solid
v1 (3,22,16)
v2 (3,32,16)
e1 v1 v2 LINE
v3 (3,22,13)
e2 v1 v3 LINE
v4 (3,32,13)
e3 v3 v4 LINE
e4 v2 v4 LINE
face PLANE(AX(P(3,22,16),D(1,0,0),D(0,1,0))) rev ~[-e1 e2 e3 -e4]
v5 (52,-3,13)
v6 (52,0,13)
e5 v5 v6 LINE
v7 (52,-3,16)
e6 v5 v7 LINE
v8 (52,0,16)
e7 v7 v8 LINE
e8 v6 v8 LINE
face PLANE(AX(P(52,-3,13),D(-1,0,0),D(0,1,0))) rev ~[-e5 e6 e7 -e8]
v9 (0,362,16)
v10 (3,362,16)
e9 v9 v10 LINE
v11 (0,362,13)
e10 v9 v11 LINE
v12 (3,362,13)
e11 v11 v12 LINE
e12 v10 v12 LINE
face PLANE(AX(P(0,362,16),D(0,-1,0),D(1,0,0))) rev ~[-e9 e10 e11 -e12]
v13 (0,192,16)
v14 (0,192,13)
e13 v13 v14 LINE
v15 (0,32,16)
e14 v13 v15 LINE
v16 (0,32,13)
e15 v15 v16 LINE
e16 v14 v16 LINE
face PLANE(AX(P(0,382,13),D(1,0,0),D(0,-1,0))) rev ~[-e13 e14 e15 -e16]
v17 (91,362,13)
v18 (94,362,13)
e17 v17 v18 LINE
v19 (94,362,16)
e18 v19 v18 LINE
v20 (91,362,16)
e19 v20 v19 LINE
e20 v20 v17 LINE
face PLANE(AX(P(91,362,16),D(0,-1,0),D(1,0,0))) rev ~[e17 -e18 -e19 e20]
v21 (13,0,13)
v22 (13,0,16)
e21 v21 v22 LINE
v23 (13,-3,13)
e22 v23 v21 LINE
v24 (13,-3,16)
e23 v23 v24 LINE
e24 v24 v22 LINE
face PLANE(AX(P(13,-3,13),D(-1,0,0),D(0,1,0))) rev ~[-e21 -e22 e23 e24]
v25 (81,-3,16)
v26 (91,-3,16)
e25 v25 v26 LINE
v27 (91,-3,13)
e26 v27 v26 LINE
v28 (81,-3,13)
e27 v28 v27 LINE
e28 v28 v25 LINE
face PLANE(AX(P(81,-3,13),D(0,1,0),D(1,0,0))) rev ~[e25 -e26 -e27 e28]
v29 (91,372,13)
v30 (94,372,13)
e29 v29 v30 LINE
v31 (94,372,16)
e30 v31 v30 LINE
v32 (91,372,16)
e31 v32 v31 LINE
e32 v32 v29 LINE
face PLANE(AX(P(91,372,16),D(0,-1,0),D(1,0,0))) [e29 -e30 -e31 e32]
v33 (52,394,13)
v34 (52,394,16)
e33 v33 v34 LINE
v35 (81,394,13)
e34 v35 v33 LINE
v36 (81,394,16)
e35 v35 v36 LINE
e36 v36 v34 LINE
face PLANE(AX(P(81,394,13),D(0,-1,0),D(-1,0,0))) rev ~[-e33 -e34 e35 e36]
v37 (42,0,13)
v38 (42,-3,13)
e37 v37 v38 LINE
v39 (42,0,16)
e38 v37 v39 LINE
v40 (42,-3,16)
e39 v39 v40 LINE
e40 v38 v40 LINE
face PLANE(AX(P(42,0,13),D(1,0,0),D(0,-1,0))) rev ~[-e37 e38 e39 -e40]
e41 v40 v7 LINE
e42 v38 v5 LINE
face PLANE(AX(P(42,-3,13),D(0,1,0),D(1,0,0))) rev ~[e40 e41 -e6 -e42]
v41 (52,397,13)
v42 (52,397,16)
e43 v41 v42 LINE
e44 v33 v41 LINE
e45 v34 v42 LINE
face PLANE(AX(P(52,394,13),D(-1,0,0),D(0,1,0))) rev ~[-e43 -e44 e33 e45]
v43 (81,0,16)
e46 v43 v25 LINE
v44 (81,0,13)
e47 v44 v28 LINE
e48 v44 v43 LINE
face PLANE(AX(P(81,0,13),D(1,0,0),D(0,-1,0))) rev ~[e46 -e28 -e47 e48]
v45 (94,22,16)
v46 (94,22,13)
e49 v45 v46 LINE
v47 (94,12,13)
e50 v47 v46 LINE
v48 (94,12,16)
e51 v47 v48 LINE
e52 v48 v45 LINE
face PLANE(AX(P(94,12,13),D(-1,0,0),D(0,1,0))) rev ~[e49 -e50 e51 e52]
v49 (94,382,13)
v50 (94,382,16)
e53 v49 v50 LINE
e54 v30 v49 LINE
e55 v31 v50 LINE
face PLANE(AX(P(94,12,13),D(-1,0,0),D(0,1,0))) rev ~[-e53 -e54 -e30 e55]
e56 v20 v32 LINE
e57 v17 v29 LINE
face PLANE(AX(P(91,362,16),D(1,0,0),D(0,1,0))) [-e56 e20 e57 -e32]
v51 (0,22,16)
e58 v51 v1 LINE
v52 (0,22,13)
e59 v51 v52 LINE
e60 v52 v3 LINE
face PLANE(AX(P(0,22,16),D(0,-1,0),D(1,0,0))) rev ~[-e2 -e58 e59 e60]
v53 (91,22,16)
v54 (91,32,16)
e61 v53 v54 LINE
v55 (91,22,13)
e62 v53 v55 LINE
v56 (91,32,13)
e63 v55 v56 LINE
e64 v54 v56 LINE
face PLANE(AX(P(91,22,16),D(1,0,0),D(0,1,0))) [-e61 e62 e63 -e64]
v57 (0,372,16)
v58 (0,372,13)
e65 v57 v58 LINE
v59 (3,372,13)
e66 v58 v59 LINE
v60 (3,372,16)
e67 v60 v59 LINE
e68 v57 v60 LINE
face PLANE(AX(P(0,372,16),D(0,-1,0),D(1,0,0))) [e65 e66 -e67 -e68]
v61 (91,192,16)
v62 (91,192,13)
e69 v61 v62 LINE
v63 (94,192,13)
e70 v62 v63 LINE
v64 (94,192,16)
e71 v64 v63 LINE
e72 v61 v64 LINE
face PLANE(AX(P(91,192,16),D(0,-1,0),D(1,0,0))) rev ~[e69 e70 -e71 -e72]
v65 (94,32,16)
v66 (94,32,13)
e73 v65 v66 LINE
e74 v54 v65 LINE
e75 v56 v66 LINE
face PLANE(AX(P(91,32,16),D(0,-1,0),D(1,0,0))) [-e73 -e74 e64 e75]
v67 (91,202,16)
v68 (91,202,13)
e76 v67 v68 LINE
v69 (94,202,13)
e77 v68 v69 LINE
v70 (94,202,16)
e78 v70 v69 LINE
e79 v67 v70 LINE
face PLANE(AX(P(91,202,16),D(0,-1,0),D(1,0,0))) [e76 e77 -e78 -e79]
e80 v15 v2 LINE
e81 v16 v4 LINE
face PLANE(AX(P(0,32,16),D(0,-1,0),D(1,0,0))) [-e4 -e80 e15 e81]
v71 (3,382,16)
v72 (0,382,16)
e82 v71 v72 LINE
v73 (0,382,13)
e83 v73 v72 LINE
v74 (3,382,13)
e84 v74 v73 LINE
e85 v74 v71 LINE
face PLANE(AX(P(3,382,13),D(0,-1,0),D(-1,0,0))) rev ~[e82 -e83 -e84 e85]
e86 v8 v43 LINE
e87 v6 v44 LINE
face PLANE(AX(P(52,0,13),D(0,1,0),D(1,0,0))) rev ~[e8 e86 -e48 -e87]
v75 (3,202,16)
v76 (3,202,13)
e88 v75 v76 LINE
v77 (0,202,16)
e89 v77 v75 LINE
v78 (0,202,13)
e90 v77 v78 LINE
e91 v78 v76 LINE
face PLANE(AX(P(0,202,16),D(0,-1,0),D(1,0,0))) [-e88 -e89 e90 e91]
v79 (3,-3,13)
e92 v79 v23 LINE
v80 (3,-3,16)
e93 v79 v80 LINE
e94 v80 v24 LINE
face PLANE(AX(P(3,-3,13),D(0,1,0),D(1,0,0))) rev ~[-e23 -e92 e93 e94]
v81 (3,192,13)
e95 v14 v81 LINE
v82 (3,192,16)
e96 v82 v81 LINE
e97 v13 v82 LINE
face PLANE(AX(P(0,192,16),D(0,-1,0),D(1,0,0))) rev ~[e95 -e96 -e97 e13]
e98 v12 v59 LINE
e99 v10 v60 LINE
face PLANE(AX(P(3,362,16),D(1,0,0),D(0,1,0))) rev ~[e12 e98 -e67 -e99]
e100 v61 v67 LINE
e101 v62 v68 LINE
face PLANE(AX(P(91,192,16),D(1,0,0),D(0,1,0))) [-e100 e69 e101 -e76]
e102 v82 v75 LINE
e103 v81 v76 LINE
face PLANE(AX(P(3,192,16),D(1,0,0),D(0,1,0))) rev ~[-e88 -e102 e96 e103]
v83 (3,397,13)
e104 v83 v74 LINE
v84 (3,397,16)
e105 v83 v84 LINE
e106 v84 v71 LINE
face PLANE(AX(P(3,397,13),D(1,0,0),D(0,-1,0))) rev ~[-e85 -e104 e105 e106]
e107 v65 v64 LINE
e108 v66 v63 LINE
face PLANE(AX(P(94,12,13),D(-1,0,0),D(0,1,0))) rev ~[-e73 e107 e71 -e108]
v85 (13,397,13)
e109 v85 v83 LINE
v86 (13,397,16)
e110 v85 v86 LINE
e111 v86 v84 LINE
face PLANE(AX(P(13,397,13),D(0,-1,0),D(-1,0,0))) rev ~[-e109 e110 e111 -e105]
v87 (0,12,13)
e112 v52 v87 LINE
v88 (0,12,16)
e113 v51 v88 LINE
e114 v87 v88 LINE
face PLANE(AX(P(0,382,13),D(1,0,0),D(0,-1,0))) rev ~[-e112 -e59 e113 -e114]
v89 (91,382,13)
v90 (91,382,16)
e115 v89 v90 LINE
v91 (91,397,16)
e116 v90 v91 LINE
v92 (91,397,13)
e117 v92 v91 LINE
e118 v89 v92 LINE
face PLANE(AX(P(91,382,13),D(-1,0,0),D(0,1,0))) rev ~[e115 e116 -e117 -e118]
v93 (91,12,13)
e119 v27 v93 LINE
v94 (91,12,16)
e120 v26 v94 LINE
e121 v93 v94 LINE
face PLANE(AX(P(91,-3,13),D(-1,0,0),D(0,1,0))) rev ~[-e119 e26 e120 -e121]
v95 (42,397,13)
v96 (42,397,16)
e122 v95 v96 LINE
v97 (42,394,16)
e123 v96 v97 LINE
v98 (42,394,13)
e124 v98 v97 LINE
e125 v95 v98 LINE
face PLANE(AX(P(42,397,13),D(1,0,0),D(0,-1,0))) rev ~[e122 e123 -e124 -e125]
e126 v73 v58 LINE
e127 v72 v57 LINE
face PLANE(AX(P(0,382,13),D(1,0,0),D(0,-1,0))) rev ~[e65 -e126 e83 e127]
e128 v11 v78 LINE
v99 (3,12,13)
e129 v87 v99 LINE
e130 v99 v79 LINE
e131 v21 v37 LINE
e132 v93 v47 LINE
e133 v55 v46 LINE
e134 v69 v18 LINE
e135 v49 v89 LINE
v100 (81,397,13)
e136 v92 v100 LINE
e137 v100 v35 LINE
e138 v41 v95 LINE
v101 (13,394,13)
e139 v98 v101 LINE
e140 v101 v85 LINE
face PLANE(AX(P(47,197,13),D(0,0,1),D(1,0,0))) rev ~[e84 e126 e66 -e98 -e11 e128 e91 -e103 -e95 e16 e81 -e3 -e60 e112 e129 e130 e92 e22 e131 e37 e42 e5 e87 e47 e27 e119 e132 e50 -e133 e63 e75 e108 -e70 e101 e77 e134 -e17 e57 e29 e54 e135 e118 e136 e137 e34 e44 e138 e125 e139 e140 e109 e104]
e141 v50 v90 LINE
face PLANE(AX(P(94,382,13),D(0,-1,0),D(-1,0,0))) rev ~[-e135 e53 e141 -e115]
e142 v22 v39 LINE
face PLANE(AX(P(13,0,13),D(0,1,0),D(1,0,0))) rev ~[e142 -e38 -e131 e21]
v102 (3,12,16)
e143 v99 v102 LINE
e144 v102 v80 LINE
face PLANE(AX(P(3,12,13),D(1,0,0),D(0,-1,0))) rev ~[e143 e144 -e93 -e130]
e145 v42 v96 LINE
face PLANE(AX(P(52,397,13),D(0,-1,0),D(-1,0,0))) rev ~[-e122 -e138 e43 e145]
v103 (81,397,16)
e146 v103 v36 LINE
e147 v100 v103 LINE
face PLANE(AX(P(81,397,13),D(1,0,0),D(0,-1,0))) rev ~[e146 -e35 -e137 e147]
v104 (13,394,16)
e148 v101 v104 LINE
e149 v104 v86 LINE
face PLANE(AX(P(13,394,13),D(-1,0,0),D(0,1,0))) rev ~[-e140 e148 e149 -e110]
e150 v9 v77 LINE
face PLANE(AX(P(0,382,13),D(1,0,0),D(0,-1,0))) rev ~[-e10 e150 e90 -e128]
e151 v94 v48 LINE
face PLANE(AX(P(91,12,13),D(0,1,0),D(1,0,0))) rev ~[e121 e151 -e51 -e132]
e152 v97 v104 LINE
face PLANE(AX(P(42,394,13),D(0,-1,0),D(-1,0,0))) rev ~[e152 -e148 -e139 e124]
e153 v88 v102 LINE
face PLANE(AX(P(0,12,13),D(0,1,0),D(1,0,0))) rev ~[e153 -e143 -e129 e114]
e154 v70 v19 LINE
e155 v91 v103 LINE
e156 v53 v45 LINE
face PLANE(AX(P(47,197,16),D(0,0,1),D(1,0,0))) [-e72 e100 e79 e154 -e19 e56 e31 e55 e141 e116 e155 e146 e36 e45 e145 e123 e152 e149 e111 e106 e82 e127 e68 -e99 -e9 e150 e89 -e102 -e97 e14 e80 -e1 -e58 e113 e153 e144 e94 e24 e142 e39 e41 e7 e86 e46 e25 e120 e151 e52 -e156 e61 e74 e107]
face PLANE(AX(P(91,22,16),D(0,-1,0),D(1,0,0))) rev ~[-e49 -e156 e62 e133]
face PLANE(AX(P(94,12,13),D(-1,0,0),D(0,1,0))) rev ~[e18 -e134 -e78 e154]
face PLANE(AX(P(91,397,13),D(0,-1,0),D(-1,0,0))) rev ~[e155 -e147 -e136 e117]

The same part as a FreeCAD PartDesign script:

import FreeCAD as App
import Part
import Sketcher
Q = App.Units.Quantity

doc = App.newDocument("Part")
body = doc.addObject("PartDesign::Body", "Body")

# Sketch on XY plane
sketch1 = body.newObject("Sketcher::SketchObject", "Sketch")
sketch1.AttachmentSupport = (doc.getObject("XY_Plane"), [""])
sketch1.MapMode = "FlatFace"
sketch1.addGeometry([
    Part.LineSegment(App.Vector(0, -3, 0), App.Vector(10, -3, 0)),  # 0
    Part.LineSegment(App.Vector(10, -3, 0), App.Vector(10, 0, 0)),  # 1
    Part.LineSegment(App.Vector(10, 0, 0), App.Vector(39, 0, 0)),  # 2
    Part.LineSegment(App.Vector(39, 0, 0), App.Vector(39, -3, 0)),  # 3
    Part.LineSegment(App.Vector(39, -3, 0), App.Vector(49, -3, 0)),  # 4
    Part.LineSegment(App.Vector(49, -3, 0), App.Vector(49, 0, 0)),  # 5
    Part.LineSegment(App.Vector(49, 0, 0), App.Vector(78, 0, 0)),  # 6
    Part.LineSegment(App.Vector(78, 0, 0), App.Vector(78, -3, 0)),  # 7
    Part.LineSegment(App.Vector(78, -3, 0), App.Vector(88, -3, 0)),  # 8
    Part.LineSegment(App.Vector(88, -3, 0), App.Vector(88, 12, 0)),  # 9
    Part.LineSegment(App.Vector(88, 12, 0), App.Vector(91, 12, 0)),  # 10
    Part.LineSegment(App.Vector(91, 12, 0), App.Vector(91, 382, 0)),  # 11
    Part.LineSegment(App.Vector(91, 382, 0), App.Vector(88, 382, 0)),  # 12
    Part.LineSegment(App.Vector(88, 382, 0), App.Vector(88, 397, 0)),  # 13
    Part.LineSegment(App.Vector(88, 397, 0), App.Vector(78, 397, 0)),  # 14
    Part.LineSegment(App.Vector(78, 397, 0), App.Vector(78, 394, 0)),  # 15
    Part.LineSegment(App.Vector(78, 394, 0), App.Vector(49, 394, 0)),  # 16
    Part.LineSegment(App.Vector(49, 394, 0), App.Vector(49, 397, 0)),  # 17
    Part.LineSegment(App.Vector(49, 397, 0), App.Vector(39, 397, 0)),  # 18
    Part.LineSegment(App.Vector(39, 397, 0), App.Vector(39, 394, 0)),  # 19
    Part.LineSegment(App.Vector(39, 394, 0), App.Vector(10, 394, 0)),  # 20
    Part.LineSegment(App.Vector(10, 394, 0), App.Vector(10, 397, 0)),  # 21
    Part.LineSegment(App.Vector(10, 397, 0), App.Vector(0, 397, 0)),  # 22
    Part.LineSegment(App.Vector(0, 397, 0), App.Vector(0, 382, 0)),  # 23
    Part.LineSegment(App.Vector(0, 382, 0), App.Vector(-3, 382, 0)),  # 24
    Part.LineSegment(App.Vector(-3, 382, 0), App.Vector(-3, 12, 0)),  # 25
    Part.LineSegment(App.Vector(-3, 12, 0), App.Vector(0, 12, 0)),  # 26
    Part.LineSegment(App.Vector(0, 12, 0), App.Vector(0, -3, 0)),  # 27
], False)
sketch1.addConstraint([
    Sketcher.Constraint("Coincident", 0, 2, 1, 1),
    Sketcher.Constraint("Coincident", 1, 2, 2, 1),
    Sketcher.Constraint("Coincident", 2, 2, 3, 1),
    Sketcher.Constraint("Coincident", 3, 2, 4, 1),
    Sketcher.Constraint("Coincident", 4, 2, 5, 1),
    Sketcher.Constraint("Coincident", 5, 2, 6, 1),
    Sketcher.Constraint("Coincident", 6, 2, 7, 1),
    Sketcher.Constraint("Coincident", 7, 2, 8, 1),
    Sketcher.Constraint("Coincident", 8, 2, 9, 1),
    Sketcher.Constraint("Coincident", 9, 2, 10, 1),
    Sketcher.Constraint("Coincident", 10, 2, 11, 1),
    Sketcher.Constraint("Coincident", 11, 2, 12, 1),
    Sketcher.Constraint("Coincident", 12, 2, 13, 1),
    Sketcher.Constraint("Coincident", 13, 2, 14, 1),
    Sketcher.Constraint("Coincident", 14, 2, 15, 1),
    Sketcher.Constraint("Coincident", 15, 2, 16, 1),
    Sketcher.Constraint("Coincident", 16, 2, 17, 1),
    Sketcher.Constraint("Coincident", 17, 2, 18, 1),
    Sketcher.Constraint("Coincident", 18, 2, 19, 1),
    Sketcher.Constraint("Coincident", 19, 2, 20, 1),
    Sketcher.Constraint("Coincident", 20, 2, 21, 1),
    Sketcher.Constraint("Coincident", 21, 2, 22, 1),
    Sketcher.Constraint("Coincident", 22, 2, 23, 1),
    Sketcher.Constraint("Coincident", 23, 2, 24, 1),
    Sketcher.Constraint("Coincident", 24, 2, 25, 1),
    Sketcher.Constraint("Coincident", 25, 2, 26, 1),
    Sketcher.Constraint("Coincident", 26, 2, 27, 1),
    Sketcher.Constraint("Coincident", 27, 2, 0, 1),
    Sketcher.Constraint("Horizontal", 0),
    Sketcher.Constraint("Vertical", 1),
    Sketcher.Constraint("Horizontal", 2),
    Sketcher.Constraint("Vertical", 3),
    Sketcher.Constraint("Horizontal", 4),
    Sketcher.Constraint("Vertical", 5),
    Sketcher.Constraint("Horizontal", 6),
    Sketcher.Constraint("Vertical", 7),
    Sketcher.Constraint("Horizontal", 8),
    Sketcher.Constraint("Vertical", 9),
    Sketcher.Constraint("Horizontal", 10),
    Sketcher.Constraint("Vertical", 11),
    Sketcher.Constraint("Horizontal", 12),
    Sketcher.Constraint("Vertical", 13),
    Sketcher.Constraint("Horizontal", 14),
    Sketcher.Constraint("Vertical", 15),
    Sketcher.Constraint("Horizontal", 16),
    Sketcher.Constraint("Vertical", 17),
    Sketcher.Constraint("Horizontal", 18),
    Sketcher.Constraint("Vertical", 19),
    Sketcher.Constraint("Horizontal", 20),
    Sketcher.Constraint("Vertical", 21),
    Sketcher.Constraint("Horizontal", 22),
    Sketcher.Constraint("Vertical", 23),
    Sketcher.Constraint("Horizontal", 24),
    Sketcher.Constraint("Vertical", 25),
    Sketcher.Constraint("Horizontal", 26),
    Sketcher.Constraint("Vertical", 27),
    Sketcher.Constraint("PointOnObject", 1, 2, -1),
    Sketcher.Constraint("PointOnObject", 5, 2, -1),
    Sketcher.Constraint("PointOnObject", 22, 2, -2),
    Sketcher.Constraint("PointOnObject", 26, 2, -2),
    Sketcher.Constraint("Horizontal", 0, 2, 3, 2),
    Sketcher.Constraint("Horizontal", 4, 2, 7, 2),
    Sketcher.Constraint("Horizontal", 14, 2, 17, 2),
    Sketcher.Constraint("Horizontal", 16, 2, 19, 2),
    Sketcher.Constraint("Horizontal", 18, 2, 21, 2),
    Sketcher.Constraint("Horizontal", 12, 2, 23, 2),
    Sketcher.Constraint("Horizontal", 10, 2, 25, 2),
    Sketcher.Constraint("Vertical", 9, 2, 12, 2),
    Sketcher.Constraint("Vertical", 7, 2, 14, 2),
    Sketcher.Constraint("Vertical", 5, 2, 16, 2),
    Sketcher.Constraint("Vertical", 3, 2, 18, 2),
    Sketcher.Constraint("Vertical", 1, 2, 20, 2),
    Sketcher.Constraint("Equal", 0, 4),
    Sketcher.Constraint("Equal", 2, 6),
    Sketcher.Constraint("Equal", 4, 8),
    Sketcher.Constraint("Equal", 12, 24),
    Sketcher.Constraint("Equal", 26, 1),
    Sketcher.Constraint("Equal", 9, 13),
    Sketcher.Constraint("Equal", 7, 15),
    Sketcher.Constraint("DistanceX", 0, 1, 0, 2, Q("10 mm")),
    Sketcher.Constraint("DistanceX", 2, 1, 2, 2, Q("29 mm")),
    Sketcher.Constraint("DistanceX", 10, 1, 10, 2, Q("3 mm")),
    Sketcher.Constraint("DistanceY", 9, 1, 9, 2, Q("15 mm")),
    Sketcher.Constraint("DistanceY", 11, 1, 11, 2, Q("370 mm")),
])
pad1 = body.newObject("PartDesign::Pad", "Pad")
pad1.Profile = sketch1
pad1.Length = 3

# Sketch on XY plane
sketch2 = body.newObject("Sketcher::SketchObject", "Sketch001")
sketch2.AttachmentSupport = (doc.getObject("XY_Plane"), [""])
sketch2.MapMode = "FlatFace"
sketch2.AttachmentOffset = App.Placement(App.Vector(0, 0, 3), App.Rotation())
sketch2.addGeometry([
    Part.LineSegment(App.Vector(-3, 32, 0), App.Vector(-3, 22, 0)),  # 0
    Part.LineSegment(App.Vector(-3, 22, 0), App.Vector(0, 22, 0)),  # 1
    Part.LineSegment(App.Vector(0, 22, 0), App.Vector(0, 32, 0)),  # 2
    Part.LineSegment(App.Vector(0, 32, 0), App.Vector(-3, 32, 0)),  # 3
    Part.LineSegment(App.Vector(88, 32, 0), App.Vector(88, 22, 0)),  # 4
    Part.LineSegment(App.Vector(88, 22, 0), App.Vector(91, 22, 0)),  # 5
    Part.LineSegment(App.Vector(91, 22, 0), App.Vector(91, 32, 0)),  # 6
    Part.LineSegment(App.Vector(91, 32, 0), App.Vector(88, 32, 0)),  # 7
], False)
sketch2.addConstraint([
    Sketcher.Constraint("Coincident", 0, 2, 1, 1),
    Sketcher.Constraint("Coincident", 1, 2, 2, 1),
    Sketcher.Constraint("Coincident", 2, 2, 3, 1),
    Sketcher.Constraint("Coincident", 3, 2, 0, 1),
    Sketcher.Constraint("Coincident", 4, 2, 5, 1),
    Sketcher.Constraint("Coincident", 5, 2, 6, 1),
    Sketcher.Constraint("Coincident", 6, 2, 7, 1),
    Sketcher.Constraint("Coincident", 7, 2, 4, 1),
    Sketcher.Constraint("Vertical", 0),
    Sketcher.Constraint("Horizontal", 1),
    Sketcher.Constraint("Vertical", 2),
    Sketcher.Constraint("Horizontal", 3),
    Sketcher.Constraint("Vertical", 4),
    Sketcher.Constraint("Horizontal", 5),
    Sketcher.Constraint("Vertical", 6),
    Sketcher.Constraint("Horizontal", 7),
    Sketcher.Constraint("PointOnObject", 1, 2, -2),
    Sketcher.Constraint("Horizontal", 1, 2, 4, 2),
    Sketcher.Constraint("Horizontal", 3, 2, 6, 2),
    Sketcher.Constraint("Equal", 3, 5),
    Sketcher.Constraint("DistanceX", 1, 1, 1, 2, Q("3 mm")),
    Sketcher.Constraint("DistanceY", 0, 2, 0, 1, Q("10 mm")),
    Sketcher.Constraint("DistanceY", -1, 1, 0, 2, Q("22 mm")),
    Sketcher.Constraint("DistanceX", -1, 1, 4, 2, Q("88 mm")),
])
pocket1 = body.newObject("PartDesign::Pocket", "Pocket")
pocket1.Profile = sketch2
pocket1.Length = 3
doc.recompute()

linearpattern = body.newObject("PartDesign::LinearPattern", "LinearPattern")
linearpattern.Originals = [pocket1]
linearpattern.Direction = (doc.getObject("Y_Axis"), [""])
linearpattern.Mode = "offset"
linearpattern.Offset = 170
linearpattern.Occurrences = 3
body.Tip = linearpattern
body2 = doc.addObject("PartDesign::Body", "Body001")
doc.recompute()

body.Placement = App.Placement(App.Vector(3, 0, 13), App.Rotation(App.Vector(0, 0, 1), 0))
boolean = body2.newObject("PartDesign::Boolean", "Boolean")
boolean.Type = "Fuse"
boolean.addObjects([body])

doc.recompute()
